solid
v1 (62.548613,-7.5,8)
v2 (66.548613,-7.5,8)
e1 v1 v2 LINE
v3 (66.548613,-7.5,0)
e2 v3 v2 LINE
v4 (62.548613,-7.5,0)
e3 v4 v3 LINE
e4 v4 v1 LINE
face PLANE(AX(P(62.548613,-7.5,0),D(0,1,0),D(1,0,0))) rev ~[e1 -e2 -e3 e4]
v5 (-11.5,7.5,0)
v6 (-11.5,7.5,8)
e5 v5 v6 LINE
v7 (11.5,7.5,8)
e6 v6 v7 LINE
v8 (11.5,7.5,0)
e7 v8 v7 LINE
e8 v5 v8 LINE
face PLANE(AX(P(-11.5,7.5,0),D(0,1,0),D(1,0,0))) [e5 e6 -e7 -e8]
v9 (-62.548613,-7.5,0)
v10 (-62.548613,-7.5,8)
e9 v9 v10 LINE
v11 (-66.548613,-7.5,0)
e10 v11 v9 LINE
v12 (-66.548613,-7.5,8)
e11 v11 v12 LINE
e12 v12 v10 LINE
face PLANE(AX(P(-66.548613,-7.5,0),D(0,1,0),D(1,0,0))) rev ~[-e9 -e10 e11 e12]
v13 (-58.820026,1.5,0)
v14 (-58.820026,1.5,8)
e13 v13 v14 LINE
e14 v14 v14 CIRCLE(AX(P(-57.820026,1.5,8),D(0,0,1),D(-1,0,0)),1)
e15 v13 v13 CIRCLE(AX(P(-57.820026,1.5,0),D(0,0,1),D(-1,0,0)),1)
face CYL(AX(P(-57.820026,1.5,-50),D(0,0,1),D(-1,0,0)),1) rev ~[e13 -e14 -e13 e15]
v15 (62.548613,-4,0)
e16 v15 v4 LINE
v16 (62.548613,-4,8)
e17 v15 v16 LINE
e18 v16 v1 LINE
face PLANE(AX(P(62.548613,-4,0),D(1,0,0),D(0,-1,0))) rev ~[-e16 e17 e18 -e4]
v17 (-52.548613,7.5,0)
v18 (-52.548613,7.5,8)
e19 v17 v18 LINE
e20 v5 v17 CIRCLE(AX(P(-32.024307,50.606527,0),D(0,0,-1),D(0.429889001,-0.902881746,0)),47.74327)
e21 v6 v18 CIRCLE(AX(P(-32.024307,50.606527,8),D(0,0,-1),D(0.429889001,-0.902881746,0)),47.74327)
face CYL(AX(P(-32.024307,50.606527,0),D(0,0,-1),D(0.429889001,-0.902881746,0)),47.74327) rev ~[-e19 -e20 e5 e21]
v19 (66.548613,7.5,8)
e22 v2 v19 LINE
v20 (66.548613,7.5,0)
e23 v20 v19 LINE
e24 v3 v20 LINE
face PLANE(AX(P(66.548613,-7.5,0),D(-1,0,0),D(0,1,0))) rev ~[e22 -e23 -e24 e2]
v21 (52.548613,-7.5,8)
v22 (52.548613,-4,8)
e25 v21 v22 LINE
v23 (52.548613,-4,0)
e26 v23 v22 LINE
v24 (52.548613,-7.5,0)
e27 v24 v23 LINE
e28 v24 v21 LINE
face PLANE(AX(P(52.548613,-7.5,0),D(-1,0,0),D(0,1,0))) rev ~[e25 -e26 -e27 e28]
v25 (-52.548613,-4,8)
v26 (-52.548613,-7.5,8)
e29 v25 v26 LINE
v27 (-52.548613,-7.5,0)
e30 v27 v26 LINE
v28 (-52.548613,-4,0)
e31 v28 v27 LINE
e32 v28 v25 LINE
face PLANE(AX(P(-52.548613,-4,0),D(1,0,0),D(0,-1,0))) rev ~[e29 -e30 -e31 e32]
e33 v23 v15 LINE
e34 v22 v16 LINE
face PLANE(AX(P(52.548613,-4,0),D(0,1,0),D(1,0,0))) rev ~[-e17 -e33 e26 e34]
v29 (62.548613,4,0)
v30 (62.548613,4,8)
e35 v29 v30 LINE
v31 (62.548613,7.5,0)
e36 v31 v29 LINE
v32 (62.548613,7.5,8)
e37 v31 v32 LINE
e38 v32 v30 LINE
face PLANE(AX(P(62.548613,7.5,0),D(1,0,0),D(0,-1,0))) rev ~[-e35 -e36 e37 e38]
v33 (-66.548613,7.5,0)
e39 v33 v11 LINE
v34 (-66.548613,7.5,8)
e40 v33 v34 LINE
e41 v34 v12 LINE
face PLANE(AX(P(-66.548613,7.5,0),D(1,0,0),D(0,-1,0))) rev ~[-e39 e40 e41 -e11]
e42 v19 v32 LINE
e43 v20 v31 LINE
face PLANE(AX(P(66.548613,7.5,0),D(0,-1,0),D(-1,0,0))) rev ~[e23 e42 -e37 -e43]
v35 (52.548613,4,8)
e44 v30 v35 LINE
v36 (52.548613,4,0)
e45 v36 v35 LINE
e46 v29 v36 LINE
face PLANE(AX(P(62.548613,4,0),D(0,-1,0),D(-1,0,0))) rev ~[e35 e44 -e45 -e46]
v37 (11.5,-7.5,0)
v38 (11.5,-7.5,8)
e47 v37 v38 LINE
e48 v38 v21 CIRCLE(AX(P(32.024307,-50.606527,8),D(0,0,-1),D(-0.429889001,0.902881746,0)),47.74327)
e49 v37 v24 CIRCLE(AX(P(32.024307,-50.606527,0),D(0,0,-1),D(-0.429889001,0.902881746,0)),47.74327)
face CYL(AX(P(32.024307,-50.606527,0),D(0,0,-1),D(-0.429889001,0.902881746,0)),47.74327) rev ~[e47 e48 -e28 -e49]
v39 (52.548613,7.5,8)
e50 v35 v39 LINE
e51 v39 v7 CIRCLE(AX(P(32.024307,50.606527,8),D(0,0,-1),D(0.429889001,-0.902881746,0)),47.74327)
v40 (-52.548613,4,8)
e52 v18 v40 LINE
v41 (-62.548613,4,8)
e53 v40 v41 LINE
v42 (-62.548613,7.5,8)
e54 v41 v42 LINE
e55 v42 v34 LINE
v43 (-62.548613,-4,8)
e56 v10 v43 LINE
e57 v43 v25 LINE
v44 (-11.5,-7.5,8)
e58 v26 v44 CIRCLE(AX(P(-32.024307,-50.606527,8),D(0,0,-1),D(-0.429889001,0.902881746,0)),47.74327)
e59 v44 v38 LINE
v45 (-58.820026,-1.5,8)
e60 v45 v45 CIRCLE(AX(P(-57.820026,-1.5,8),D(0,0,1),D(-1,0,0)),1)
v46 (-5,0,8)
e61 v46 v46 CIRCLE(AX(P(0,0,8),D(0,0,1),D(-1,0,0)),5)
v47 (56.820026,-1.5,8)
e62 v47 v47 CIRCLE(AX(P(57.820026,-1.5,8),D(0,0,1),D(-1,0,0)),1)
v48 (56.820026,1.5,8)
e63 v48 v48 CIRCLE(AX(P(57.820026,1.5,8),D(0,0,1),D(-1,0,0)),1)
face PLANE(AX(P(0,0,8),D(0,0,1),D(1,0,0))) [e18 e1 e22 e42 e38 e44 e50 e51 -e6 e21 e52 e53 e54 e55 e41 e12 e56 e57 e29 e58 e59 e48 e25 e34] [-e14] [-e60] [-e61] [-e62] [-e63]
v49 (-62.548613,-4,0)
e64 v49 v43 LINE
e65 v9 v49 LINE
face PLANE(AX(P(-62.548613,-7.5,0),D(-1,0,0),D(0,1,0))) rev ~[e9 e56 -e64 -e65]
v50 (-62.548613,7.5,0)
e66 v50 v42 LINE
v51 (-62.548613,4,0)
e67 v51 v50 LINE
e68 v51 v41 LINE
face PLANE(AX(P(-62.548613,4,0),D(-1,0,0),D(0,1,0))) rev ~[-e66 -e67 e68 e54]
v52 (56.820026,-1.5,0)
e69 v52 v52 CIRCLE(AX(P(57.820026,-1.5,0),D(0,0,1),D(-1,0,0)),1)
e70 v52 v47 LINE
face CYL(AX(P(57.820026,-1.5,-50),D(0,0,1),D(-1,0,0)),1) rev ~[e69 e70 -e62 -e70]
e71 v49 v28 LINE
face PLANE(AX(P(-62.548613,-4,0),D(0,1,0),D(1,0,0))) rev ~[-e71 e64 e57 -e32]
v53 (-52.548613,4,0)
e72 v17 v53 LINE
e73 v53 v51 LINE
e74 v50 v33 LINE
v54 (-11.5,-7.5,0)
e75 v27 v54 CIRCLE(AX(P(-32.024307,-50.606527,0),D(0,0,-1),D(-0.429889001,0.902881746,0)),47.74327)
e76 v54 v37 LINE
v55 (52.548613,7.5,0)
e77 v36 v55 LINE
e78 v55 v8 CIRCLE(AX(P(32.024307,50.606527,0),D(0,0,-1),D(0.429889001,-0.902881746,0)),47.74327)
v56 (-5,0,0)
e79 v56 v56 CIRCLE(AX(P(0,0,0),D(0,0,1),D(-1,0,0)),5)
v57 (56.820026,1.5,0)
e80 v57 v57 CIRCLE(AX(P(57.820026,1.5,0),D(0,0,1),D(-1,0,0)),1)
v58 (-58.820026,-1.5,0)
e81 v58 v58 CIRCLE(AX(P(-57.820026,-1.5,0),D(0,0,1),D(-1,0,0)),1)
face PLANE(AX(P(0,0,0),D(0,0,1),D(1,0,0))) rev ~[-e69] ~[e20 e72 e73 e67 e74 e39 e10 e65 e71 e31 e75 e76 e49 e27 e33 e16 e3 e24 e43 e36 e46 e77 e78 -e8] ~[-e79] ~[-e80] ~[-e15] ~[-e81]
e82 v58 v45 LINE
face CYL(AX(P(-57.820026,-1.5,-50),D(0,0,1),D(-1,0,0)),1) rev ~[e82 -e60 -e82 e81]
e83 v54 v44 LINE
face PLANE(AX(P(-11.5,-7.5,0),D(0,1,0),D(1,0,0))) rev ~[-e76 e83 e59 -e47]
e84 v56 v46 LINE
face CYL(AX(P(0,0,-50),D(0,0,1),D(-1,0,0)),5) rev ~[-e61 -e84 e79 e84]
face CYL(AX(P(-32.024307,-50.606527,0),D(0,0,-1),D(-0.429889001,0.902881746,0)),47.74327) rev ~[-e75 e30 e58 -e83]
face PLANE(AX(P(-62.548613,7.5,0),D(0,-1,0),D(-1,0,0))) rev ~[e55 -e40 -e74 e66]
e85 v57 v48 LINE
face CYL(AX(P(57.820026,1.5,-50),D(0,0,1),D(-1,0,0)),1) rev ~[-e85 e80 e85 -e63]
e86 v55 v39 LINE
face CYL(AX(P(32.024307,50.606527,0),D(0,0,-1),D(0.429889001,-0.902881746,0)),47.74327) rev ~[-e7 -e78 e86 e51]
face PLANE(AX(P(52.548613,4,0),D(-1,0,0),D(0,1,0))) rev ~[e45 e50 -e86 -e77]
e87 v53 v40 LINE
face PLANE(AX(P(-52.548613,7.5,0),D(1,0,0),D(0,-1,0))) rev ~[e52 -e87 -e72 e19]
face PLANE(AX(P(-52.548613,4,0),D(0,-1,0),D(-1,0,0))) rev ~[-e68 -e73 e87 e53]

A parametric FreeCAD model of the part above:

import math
import FreeCAD as App
import Part
import Sketcher
Q = App.Units.Quantity

doc = App.newDocument("Part")
body = doc.addObject("PartDesign::Body", "Body")

# Sketch on XY plane
sketch1 = doc.addObject("Sketcher::SketchObject", "Sketch")
body.addObject(sketch1)
sketch1.AttachmentSupport = (doc.XY_Plane, [""])
sketch1.MapMode = "FlatFace"
sketch1.addGeometry(Part.LineSegment(App.Vector(-11.5, -7.5, 0), App.Vector(11.5, -7.5, 0)), False)
sketch1.addGeometry(Part.ArcOfCircle(Part.Circle(App.Vector(32.024307, -50.606527, 0), App.Vector(0, 0, 1), 47.74327), math.radians(64.539484), math.radians(115.460516)), False)
sketch1.addGeometry(Part.LineSegment(App.Vector(52.548613, -7.5, 0), App.Vector(52.548613, -4, 0)), False)
sketch1.addGeometry(Part.LineSegment(App.Vector(52.548613, -4, 0), App.Vector(62.548613, -4, 0)), False)
sketch1.addGeometry(Part.LineSegment(App.Vector(62.548613, -4, 0), App.Vector(62.548613, -7.5, 0)), False)
sketch1.addGeometry(Part.LineSegment(App.Vector(62.548613, -7.5, 0), App.Vector(66.548613, -7.5, 0)), False)
sketch1.addGeometry(Part.LineSegment(App.Vector(66.548613, -7.5, 0), App.Vector(66.548613, 7.5, 0)), False)
sketch1.addGeometry(Part.LineSegment(App.Vector(66.548613, 7.5, 0), App.Vector(62.548613, 7.5, 0)), False)
sketch1.addGeometry(Part.LineSegment(App.Vector(62.548613, 7.5, 0), App.Vector(62.548613, 4, 0)), False)
sketch1.addGeometry(Part.LineSegment(App.Vector(62.548613, 4, 0), App.Vector(52.548613, 4, 0)), False)
sketch1.addGeometry(Part.LineSegment(App.Vector(52.548613, 4, 0), App.Vector(52.548613, 7.5, 0)), False)
sketch1.addGeometry(Part.ArcOfCircle(Part.Circle(App.Vector(32.024307, 50.606527, 0), App.Vector(0, 0, 1), 47.74327), math.radians(-115.460516), math.radians(-64.539484)), False)
sketch1.addGeometry(Part.LineSegment(App.Vector(11.5, 7.5, 0), App.Vector(-11.5, 7.5, 0)), False)
sketch1.addGeometry(Part.ArcOfCircle(Part.Circle(App.Vector(-32.024307, 50.606527, 0), App.Vector(0, 0, 1), 47.74327), math.radians(-115.460516), math.radians(-64.539484)), False)
sketch1.addGeometry(Part.LineSegment(App.Vector(-52.548613, 7.5, 0), App.Vector(-52.548613, 4, 0)), False)
sketch1.addGeometry(Part.LineSegment(App.Vector(-52.548613, 4, 0), App.Vector(-62.548613, 4, 0)), False)
sketch1.addGeometry(Part.LineSegment(App.Vector(-62.548613, 4, 0), App.Vector(-62.548613, 7.5, 0)), False)
sketch1.addGeometry(Part.LineSegment(App.Vector(-62.548613, 7.5, 0), App.Vector(-66.548613, 7.5, 0)), False)
sketch1.addGeometry(Part.LineSegment(App.Vector(-66.548613, 7.5, 0), App.Vector(-66.548613, -7.5, 0)), False)
sketch1.addGeometry(Part.LineSegment(App.Vector(-66.548613, -7.5, 0), App.Vector(-62.548613, -7.5, 0)), False)
sketch1.addGeometry(Part.LineSegment(App.Vector(-62.548613, -7.5, 0), App.Vector(-62.548613, -4, 0)), False)
sketch1.addGeometry(Part.LineSegment(App.Vector(-62.548613, -4, 0), App.Vector(-52.548613, -4, 0)), False)
sketch1.addGeometry(Part.LineSegment(App.Vector(-52.548613, -4, 0), App.Vector(-52.548613, -7.5, 0)), False)
sketch1.addGeometry(Part.ArcOfCircle(Part.Circle(App.Vector(-32.024307, -50.606527, 0), App.Vector(0, 0, 1), 47.74327), math.radians(64.539484), math.radians(115.460516)), False)
sketch1.addConstraint(Sketcher.Constraint("Coincident", 0, 2, 1, 2))
sketch1.addConstraint(Sketcher.Constraint("Coincident", 1, 1, 2, 1))
sketch1.addConstraint(Sketcher.Constraint("Coincident", 2, 2, 3, 1))
sketch1.addConstraint(Sketcher.Constraint("Coincident", 3, 2, 4, 1))
sketch1.addConstraint(Sketcher.Constraint("Coincident", 4, 2, 5, 1))
sketch1.addConstraint(Sketcher.Constraint("Coincident", 5, 2, 6, 1))
sketch1.addConstraint(Sketcher.Constraint("Coincident", 6, 2, 7, 1))
sketch1.addConstraint(Sketcher.Constraint("Coincident", 7, 2, 8, 1))
sketch1.addConstraint(Sketcher.Constraint("Coincident", 8, 2, 9, 1))
sketch1.addConstraint(Sketcher.Constraint("Coincident", 9, 2, 10, 1))
sketch1.addConstraint(Sketcher.Constraint("Coincident", 10, 2, 11, 2))
sketch1.addConstraint(Sketcher.Constraint("Coincident", 11, 1, 12, 1))
sketch1.addConstraint(Sketcher.Constraint("Coincident", 12, 2, 13, 2))
sketch1.addConstraint(Sketcher.Constraint("Coincident", 13, 1, 14, 1))
sketch1.addConstraint(Sketcher.Constraint("Coincident", 14, 2, 15, 1))
sketch1.addConstraint(Sketcher.Constraint("Coincident", 15, 2, 16, 1))
sketch1.addConstraint(Sketcher.Constraint("Coincident", 16, 2, 17, 1))
sketch1.addConstraint(Sketcher.Constraint("Coincident", 17, 2, 18, 1))
sketch1.addConstraint(Sketcher.Constraint("Coincident", 18, 2, 19, 1))
sketch1.addConstraint(Sketcher.Constraint("Coincident", 19, 2, 20, 1))
sketch1.addConstraint(Sketcher.Constraint("Coincident", 20, 2, 21, 1))
sketch1.addConstraint(Sketcher.Constraint("Coincident", 21, 2, 22, 1))
sketch1.addConstraint(Sketcher.Constraint("Coincident", 22, 2, 23, 2))
sketch1.addConstraint(Sketcher.Constraint("Coincident", 23, 1, 0, 1))
sketch1.addConstraint(Sketcher.Constraint("Horizontal", 0))
sketch1.addConstraint(Sketcher.Constraint("Vertical", 2))
sketch1.addConstraint(Sketcher.Constraint("Horizontal", 3))
sketch1.addConstraint(Sketcher.Constraint("Vertical", 4))
sketch1.addConstraint(Sketcher.Constraint("Horizontal", 5))
sketch1.addConstraint(Sketcher.Constraint("Vertical", 6))
sketch1.addConstraint(Sketcher.Constraint("Horizontal", 7))
sketch1.addConstraint(Sketcher.Constraint("Vertical", 8))
sketch1.addConstraint(Sketcher.Constraint("Horizontal", 9))
sketch1.addConstraint(Sketcher.Constraint("Vertical", 10))
sketch1.addConstraint(Sketcher.Constraint("Horizontal", 12))
sketch1.addConstraint(Sketcher.Constraint("Vertical", 14))
sketch1.addConstraint(Sketcher.Constraint("Horizontal", 15))
sketch1.addConstraint(Sketcher.Constraint("Vertical", 16))
sketch1.addConstraint(Sketcher.Constraint("Horizontal", 17))
sketch1.addConstraint(Sketcher.Constraint("Vertical", 18))
sketch1.addConstraint(Sketcher.Constraint("Horizontal", 19))
sketch1.addConstraint(Sketcher.Constraint("Vertical", 20))
sketch1.addConstraint(Sketcher.Constraint("Horizontal", 21))
sketch1.addConstraint(Sketcher.Constraint("Vertical", 22))
sketch1.addConstraint(Sketcher.Constraint("Equal", 1, 11))
sketch1.addConstraint(Sketcher.Constraint("Equal", 11, 13))
sketch1.addConstraint(Sketcher.Constraint("Equal", 13, 23))
sketch1.addConstraint(Sketcher.Constraint("Symmetric", 1, 3, 13, 3, -1, 1))
sketch1.addConstraint(Sketcher.Constraint("Symmetric", 11, 3, 23, 3, -1, 1))
sketch1.addConstraint(Sketcher.Constraint("Symmetric", 2, 2, 14, 2, -1, 1))
sketch1.addConstraint(Sketcher.Constraint("Symmetric", 4, 2, 16, 2, -1, 1))
sketch1.addConstraint(Sketcher.Constraint("Symmetric", 6, 2, 18, 2, -1, 1))
sketch1.addConstraint(Sketcher.Constraint("Symmetric", 8, 2, 20, 2, -1, 1))
sketch1.addConstraint(Sketcher.Constraint("Symmetric", 11, 3, 13, 3, -2))
sketch1.addConstraint(Sketcher.Constraint("Symmetric", 9, 2, 14, 2, -2))
sketch1.addConstraint(Sketcher.Constraint("Symmetric", 7, 2, 16, 2, -2))
sketch1.addConstraint(Sketcher.Constraint("Horizontal", 0, 2, 1, 1))
sketch1.addConstraint(Sketcher.Constraint("Horizontal", 1, 1, 4, 2))
sketch1.addConstraint(Sketcher.Constraint("Horizontal", 10, 2, 11, 1))
sketch1.addConstraint(Sketcher.Constraint("Horizontal", 19, 2, 22, 2))
sketch1.addConstraint(Sketcher.Constraint("DistanceX", 0, 1, 0, 2, Q("23 mm")))
sketch1.addConstraint(Sketcher.Constraint("DistanceX", 3, 1, 3, 2, Q("10 mm")))
sketch1.addConstraint(Sketcher.Constraint("DistanceX", 5, 1, 5, 2, Q("4 mm")))
sketch1.addConstraint(Sketcher.Constraint("DistanceY", 6, 1, 6, 2, Q("15 mm")))
sketch1.addConstraint(Sketcher.Constraint("DistanceY", 2, 1, 2, 2, Q("3.5 mm")))
sketch1.addConstraint(Sketcher.Constraint("Radius", 1, Q("47.74327 mm")))
sketch1.addConstraint(Sketcher.Constraint("DistanceX", 23, 3, 1, 1, Q("84.572919 mm")))
pad1 = doc.addObject("PartDesign::Pad", "Pad")
body.addObject(pad1)
pad1.Profile = sketch1
pad1.Length = 8

# Sketch on XY plane
sketch2 = doc.addObject("Sketcher::SketchObject", "Sketch001")
body.addObject(sketch2)
sketch2.AttachmentSupport = (doc.XY_Plane, [""])
sketch2.MapMode = "FlatFace"
sketch2.addGeometry(Part.Circle(App.Vector(-57.820026, -1.5, 0), App.Vector(0, 0, 1), 1), False)
sketch2.addGeometry(Part.Circle(App.Vector(-57.820026, 1.5, 0), App.Vector(0, 0, 1), 1), False)
sketch2.addGeometry(Part.Circle(App.Vector(57.820026, -1.5, 0), App.Vector(0, 0, 1), 1), False)
sketch2.addGeometry(Part.Circle(App.Vector(57.820026, 1.5, 0), App.Vector(0, 0, 1), 1), False)
sketch2.addConstraint(Sketcher.Constraint("Equal", 0, 1))
sketch2.addConstraint(Sketcher.Constraint("Equal", 1, 2))
sketch2.addConstraint(Sketcher.Constraint("Equal", 2, 3))
sketch2.addConstraint(Sketcher.Constraint("Symmetric", 1, 3, 2, 3, -1, 1))
sketch2.addConstraint(Sketcher.Constraint("Symmetric", 0, 3, 3, 3, -1, 1))
sketch2.addConstraint(Sketcher.Constraint("Symmetric", 0, 3, 2, 3, -2))
sketch2.addConstraint(Sketcher.Constraint("Diameter", 0, Q("2 mm")))
sketch2.addConstraint(Sketcher.Constraint("DistanceY", 0, 3, 1, 3, Q("3 mm")))
sketch2.addConstraint(Sketcher.Constraint("DistanceX", 0, 3, 2, 3, Q("115.640052 mm")))
doc.recompute()
hole = doc.addObject("PartDesign::Hole", "Hole")
body.addObject(hole)
hole.Profile = sketch2
hole.ThreadType = "None"
hole.Diameter = 2
hole.DepthType = "Dimension"
hole.Depth = 50
hole.DrillPoint = "Flat"
hole.Reversed = True

# Sketch on XY plane
sketch3 = doc.addObject("Sketcher::SketchObject", "Sketch002")
body.addObject(sketch3)
sketch3.AttachmentSupport = (doc.XY_Plane, [""])
sketch3.MapMode = "FlatFace"
sketch3.addGeometry(Part.Circle(App.Vector(0, 0, 0), App.Vector(0, 0, 1), 5), False)
sketch3.addConstraint(Sketcher.Constraint("Coincident", 0, 3, -1, 1))
sketch3.addConstraint(Sketcher.Constraint("Diameter", 0, Q("10 mm")))
doc.recompute()
hole2 = doc.addObject("PartDesign::Hole", "Hole001")
body.addObject(hole2)
hole2.Profile = sketch3
hole2.ThreadType = "None"
hole2.Diameter = 10
hole2.DepthType = "Dimension"
hole2.Depth = 50
hole2.DrillPoint = "Flat"
hole2.Reversed = True

doc.recompute()
